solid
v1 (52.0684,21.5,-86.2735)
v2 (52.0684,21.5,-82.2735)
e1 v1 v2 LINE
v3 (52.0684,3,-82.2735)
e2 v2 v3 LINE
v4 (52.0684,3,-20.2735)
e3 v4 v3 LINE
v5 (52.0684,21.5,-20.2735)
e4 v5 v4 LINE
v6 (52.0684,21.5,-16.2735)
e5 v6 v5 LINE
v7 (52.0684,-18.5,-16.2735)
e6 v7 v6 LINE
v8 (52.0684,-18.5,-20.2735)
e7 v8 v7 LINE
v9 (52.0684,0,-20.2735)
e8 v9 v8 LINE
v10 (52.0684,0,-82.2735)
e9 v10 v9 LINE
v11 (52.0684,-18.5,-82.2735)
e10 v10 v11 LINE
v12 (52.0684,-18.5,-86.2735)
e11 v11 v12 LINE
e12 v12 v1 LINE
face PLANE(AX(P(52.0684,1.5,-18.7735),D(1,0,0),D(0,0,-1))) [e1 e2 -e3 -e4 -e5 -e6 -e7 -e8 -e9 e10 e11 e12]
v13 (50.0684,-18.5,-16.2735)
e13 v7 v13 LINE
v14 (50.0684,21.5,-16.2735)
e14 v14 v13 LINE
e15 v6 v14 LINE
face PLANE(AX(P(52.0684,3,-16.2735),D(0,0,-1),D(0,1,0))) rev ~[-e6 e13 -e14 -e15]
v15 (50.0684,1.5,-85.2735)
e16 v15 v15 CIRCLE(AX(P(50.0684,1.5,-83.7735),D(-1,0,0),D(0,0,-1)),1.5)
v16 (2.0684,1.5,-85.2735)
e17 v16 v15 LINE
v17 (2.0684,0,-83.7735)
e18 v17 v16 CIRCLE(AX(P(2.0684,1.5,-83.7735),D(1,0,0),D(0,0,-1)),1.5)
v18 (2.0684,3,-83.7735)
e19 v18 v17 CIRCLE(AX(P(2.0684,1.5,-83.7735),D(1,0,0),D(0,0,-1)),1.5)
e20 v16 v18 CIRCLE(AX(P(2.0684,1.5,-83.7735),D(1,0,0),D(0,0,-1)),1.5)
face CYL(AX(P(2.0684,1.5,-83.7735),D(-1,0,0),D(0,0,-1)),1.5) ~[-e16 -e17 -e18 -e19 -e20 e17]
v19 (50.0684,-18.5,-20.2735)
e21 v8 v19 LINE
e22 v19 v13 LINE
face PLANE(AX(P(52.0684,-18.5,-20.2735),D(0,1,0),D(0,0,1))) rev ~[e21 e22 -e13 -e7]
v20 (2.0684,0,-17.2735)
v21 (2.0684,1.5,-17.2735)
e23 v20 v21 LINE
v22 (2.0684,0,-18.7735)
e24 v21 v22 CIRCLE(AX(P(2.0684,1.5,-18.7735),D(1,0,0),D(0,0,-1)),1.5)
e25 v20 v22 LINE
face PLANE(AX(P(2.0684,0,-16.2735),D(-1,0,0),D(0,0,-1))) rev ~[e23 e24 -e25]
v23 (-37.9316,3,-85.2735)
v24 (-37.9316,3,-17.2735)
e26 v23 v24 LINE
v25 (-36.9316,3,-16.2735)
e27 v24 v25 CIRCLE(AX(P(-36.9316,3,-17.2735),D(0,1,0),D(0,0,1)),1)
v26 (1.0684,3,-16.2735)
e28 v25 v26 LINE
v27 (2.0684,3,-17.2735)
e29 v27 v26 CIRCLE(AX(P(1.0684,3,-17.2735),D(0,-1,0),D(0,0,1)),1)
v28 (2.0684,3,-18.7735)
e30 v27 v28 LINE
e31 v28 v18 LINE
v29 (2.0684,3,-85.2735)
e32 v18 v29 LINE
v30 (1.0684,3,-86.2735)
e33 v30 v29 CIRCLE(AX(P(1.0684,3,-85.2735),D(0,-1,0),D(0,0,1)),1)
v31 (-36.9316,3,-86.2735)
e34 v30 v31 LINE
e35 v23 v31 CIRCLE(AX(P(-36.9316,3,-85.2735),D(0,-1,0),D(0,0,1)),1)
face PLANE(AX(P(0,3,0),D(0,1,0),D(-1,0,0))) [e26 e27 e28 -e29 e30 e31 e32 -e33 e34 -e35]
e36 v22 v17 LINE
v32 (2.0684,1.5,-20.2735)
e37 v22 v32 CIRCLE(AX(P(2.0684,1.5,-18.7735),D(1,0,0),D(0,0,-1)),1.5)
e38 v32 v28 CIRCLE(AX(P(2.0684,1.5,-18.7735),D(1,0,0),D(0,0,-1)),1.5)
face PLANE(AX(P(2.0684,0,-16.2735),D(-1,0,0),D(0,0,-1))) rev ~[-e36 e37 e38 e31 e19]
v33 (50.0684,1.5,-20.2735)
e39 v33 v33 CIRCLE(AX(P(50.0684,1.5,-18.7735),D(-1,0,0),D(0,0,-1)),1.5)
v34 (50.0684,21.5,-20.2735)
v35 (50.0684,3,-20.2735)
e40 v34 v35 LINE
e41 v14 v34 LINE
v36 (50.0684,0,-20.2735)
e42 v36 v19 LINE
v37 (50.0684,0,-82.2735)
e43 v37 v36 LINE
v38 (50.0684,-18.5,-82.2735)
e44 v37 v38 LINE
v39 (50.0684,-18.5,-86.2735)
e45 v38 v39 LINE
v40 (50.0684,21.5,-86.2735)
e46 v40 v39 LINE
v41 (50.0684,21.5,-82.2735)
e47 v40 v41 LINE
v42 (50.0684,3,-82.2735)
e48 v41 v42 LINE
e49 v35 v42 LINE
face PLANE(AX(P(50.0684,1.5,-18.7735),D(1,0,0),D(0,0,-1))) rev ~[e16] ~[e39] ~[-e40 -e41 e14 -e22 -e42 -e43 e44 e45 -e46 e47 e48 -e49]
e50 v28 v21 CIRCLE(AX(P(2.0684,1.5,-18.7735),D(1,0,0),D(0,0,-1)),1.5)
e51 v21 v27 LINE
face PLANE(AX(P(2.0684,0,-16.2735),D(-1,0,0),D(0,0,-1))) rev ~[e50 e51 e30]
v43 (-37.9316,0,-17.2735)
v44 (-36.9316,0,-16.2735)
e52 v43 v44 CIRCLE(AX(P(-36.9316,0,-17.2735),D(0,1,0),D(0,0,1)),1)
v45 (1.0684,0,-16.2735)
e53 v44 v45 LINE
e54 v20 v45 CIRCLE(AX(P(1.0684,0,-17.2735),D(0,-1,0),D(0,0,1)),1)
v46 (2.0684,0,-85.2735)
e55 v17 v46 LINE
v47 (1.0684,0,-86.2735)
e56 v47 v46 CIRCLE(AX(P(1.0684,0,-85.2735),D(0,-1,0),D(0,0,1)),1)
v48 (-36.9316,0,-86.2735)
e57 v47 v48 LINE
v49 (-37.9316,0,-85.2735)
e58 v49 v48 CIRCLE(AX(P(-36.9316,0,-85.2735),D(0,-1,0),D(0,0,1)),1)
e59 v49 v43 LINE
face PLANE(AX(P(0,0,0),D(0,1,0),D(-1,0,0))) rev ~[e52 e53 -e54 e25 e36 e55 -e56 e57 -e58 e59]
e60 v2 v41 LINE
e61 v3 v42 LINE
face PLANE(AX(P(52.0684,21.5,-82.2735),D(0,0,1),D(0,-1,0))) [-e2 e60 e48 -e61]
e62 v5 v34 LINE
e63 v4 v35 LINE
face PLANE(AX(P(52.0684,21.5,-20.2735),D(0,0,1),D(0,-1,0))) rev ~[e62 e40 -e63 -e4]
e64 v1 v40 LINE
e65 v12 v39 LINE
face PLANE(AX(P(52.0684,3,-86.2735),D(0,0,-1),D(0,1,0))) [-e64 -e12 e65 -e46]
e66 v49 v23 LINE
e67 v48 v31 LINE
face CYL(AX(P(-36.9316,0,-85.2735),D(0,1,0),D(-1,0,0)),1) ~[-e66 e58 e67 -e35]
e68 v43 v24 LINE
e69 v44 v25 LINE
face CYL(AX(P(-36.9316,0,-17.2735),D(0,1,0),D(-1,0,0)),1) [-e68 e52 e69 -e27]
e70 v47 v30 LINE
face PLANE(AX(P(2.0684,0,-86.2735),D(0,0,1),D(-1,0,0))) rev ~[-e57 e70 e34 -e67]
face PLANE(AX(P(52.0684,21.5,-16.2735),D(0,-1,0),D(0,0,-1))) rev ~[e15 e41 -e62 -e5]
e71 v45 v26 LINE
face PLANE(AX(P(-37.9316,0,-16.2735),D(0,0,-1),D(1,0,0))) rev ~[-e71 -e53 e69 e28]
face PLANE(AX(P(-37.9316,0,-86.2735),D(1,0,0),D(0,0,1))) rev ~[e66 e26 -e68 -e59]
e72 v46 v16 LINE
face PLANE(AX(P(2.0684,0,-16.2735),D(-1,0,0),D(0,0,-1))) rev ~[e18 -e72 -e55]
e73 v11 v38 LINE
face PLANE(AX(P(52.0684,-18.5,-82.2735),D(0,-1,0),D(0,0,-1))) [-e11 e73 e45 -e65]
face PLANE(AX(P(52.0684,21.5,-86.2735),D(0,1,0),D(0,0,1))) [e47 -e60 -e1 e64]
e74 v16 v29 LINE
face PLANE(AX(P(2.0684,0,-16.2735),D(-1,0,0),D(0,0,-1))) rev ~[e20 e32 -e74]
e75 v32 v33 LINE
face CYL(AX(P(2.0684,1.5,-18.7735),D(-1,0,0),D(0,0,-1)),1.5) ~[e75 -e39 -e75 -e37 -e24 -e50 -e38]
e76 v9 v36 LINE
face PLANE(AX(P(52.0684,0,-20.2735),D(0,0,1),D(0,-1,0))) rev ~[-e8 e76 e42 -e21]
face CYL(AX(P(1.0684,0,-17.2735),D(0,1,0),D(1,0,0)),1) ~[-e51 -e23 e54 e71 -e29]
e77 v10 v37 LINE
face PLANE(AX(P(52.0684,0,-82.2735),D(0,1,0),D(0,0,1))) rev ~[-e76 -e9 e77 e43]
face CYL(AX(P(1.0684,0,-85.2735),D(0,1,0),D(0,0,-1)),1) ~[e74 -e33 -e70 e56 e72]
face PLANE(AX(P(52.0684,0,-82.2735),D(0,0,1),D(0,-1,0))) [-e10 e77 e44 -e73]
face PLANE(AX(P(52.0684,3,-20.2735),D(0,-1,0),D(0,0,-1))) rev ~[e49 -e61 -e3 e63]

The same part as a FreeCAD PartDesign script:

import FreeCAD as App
import Part
import Sketcher

V = App.Vector
Q = App.Units.Quantity


def edges_at(feature, points):
    """Names of the edges that pass closest to the given points."""
    edges = feature.Shape.Edges
    near = lambda p: min(range(len(edges)), key=lambda i: edges[i].distToShape(Part.Vertex(*p))[0])
    return sorted({f"Edge{near(p) + 1}" for p in points})


def add_polygon(sketch, points):
    """Adds a closed chain of lines whose ends are joined by coincident constraints."""
    first, n = sketch.GeometryCount, len(points)
    for a, b in zip(points, points[1:] + points[:1]):
        sketch.addGeometry(Part.LineSegment(App.Vector(*a, 0), App.Vector(*b, 0)), False)
    for i in range(n):
        sketch.addConstraint(Sketcher.Constraint("Coincident", first + i, 2, first + (i + 1) % n, 1))

doc = App.newDocument("Part")
body = doc.addObject("PartDesign::Body", "Body")

sketch1 = body.newObject("Sketcher::SketchObject", "Sketch")
sketch1.AttachmentSupport = (doc.getObject("XZ_Plane"), [""])
sketch1.MapMode = "FlatFace"
add_polygon(sketch1, [(-38, -86), (-38, -16), (2, -16), (2, -86)])
sketch1.addConstraint(Sketcher.Constraint("Vertical", 0))
sketch1.addConstraint(Sketcher.Constraint("Horizontal", 1))
sketch1.addConstraint(Sketcher.Constraint("Vertical", 2))
sketch1.addConstraint(Sketcher.Constraint("Horizontal", 3))
sketch1.addConstraint(Sketcher.Constraint("DistanceX", 1, 1, 1, 2, Q("40 mm")))
sketch1.addConstraint(Sketcher.Constraint("DistanceY", 0, 1, 0, 2, Q("70 mm")))
sketch1.addConstraint(Sketcher.Constraint("DistanceX", 0, 2, -1, 1, Q("37.9316 mm")))
sketch1.addConstraint(Sketcher.Constraint("DistanceY", 0, 2, -1, 1, Q("16.2735 mm")))
pad1 = body.newObject("PartDesign::Pad", "Pad")
pad1.Profile = sketch1
pad1.Length = 3
pad1.Reversed = True
doc.recompute()

fillet = body.newObject("PartDesign::Fillet", "Fillet")
fillet.Base = (pad1, edges_at(pad1, [
    (-37.932, 1.5, -16.273),
    (-37.932, 1.5, -86.273),
    (2.068, 1.5, -86.273),
    (2.068, 1.5, -16.273),
]))
fillet.Radius = 1

sketch2 = body.newObject("Sketcher::SketchObject", "Sketch001")
sketch2.AttachmentSupport = (doc.getObject("YZ_Plane"), [""])
sketch2.MapMode = "FlatFace"
sketch2.AttachmentOffset = App.Placement(V(0, 0, 2.0684), App.Rotation())
sketch2.addGeometry(Part.Circle(V(1.5, -18.8, 0), V(0, 0, 1), 1.5), False)
sketch2.addGeometry(Part.Circle(V(1.5, -83.8, 0), V(0, 0, 1), 1.5), False)
sketch2.addConstraint(Sketcher.Constraint("Equal", 0, 1))
sketch2.addConstraint(Sketcher.Constraint("Vertical", 0, 3, 1, 3))
sketch2.addConstraint(Sketcher.Constraint("Diameter", 0, Q("3 mm")))
sketch2.addConstraint(Sketcher.Constraint("DistanceX", -1, 1, 0, 3, Q("1.5 mm")))
sketch2.addConstraint(Sketcher.Constraint("DistanceY", 1, 3, 0, 3, Q("65 mm")))
sketch2.addConstraint(Sketcher.Constraint("DistanceY", 0, 3, -1, 1, Q("18.7735 mm")))
pad2 = body.newObject("PartDesign::Pad", "Pad001")
pad2.Profile = sketch2
pad2.Length = 50

sketch3 = body.newObject("Sketcher::SketchObject", "Sketch002")
sketch3.AttachmentSupport = (doc.getObject("YZ_Plane"), [""])
sketch3.MapMode = "FlatFace"
sketch3.AttachmentOffset = App.Placement(V(0, 0, 52.0684), App.Rotation())
add_polygon(sketch3, [(21.5, -16.3), (-18.5, -16.3), (-18.5, -20.3), (0, -20.3), (0, -82.3), (-18.5, -82.3), (-18.5, -86.3), (21.5, -86.3), (21.5, -82.3), (3, -82.3), (3, -20.3), (21.5, -20.3)])
sketch3.addConstraint(Sketcher.Constraint("Horizontal", 0))
sketch3.addConstraint(Sketcher.Constraint("Vertical", 1))
sketch3.addConstraint(Sketcher.Constraint("Horizontal", 2))
sketch3.addConstraint(Sketcher.Constraint("Vertical", 3))
sketch3.addConstraint(Sketcher.Constraint("Horizontal", 4))
sketch3.addConstraint(Sketcher.Constraint("Vertical", 5))
sketch3.addConstraint(Sketcher.Constraint("Horizontal", 6))
sketch3.addConstraint(Sketcher.Constraint("Vertical", 7))
sketch3.addConstraint(Sketcher.Constraint("Horizontal", 8))
sketch3.addConstraint(Sketcher.Constraint("Vertical", 9))
sketch3.addConstraint(Sketcher.Constraint("Horizontal", 10))
sketch3.addConstraint(Sketcher.Constraint("Vertical", 11))
sketch3.addConstraint(Sketcher.Constraint("PointOnObject", 2, 2, -2))
sketch3.addConstraint(Sketcher.Constraint("Horizontal", 4, 2, 7, 2))
sketch3.addConstraint(Sketcher.Constraint("Horizontal", 2, 2, 9, 2))
sketch3.addConstraint(Sketcher.Constraint("Vertical", 1, 2, 4, 2))
sketch3.addConstraint(Sketcher.Constraint("Vertical", 7, 2, 10, 2))
sketch3.addConstraint(Sketcher.Constraint("Equal", 4, 8))
sketch3.addConstraint(Sketcher.Constraint("Equal", 1, 5))
sketch3.addConstraint(Sketcher.Constraint("DistanceX", 0, 2, 0, 1, Q("40 mm")))
sketch3.addConstraint(Sketcher.Constraint("DistanceY", 1, 2, 1, 1, Q("4 mm")))
sketch3.addConstraint(Sketcher.Constraint("DistanceY", 3, 2, 3, 1, Q("62 mm")))
sketch3.addConstraint(Sketcher.Constraint("DistanceX", 2, 1, 2, 2, Q("18.5 mm")))
sketch3.addConstraint(Sketcher.Constraint("DistanceY", 0, 2, -1, 1, Q("16.2735 mm")))
pad3 = body.newObject("PartDesign::Pad", "Pad002")
pad3.Profile = sketch3
pad3.Length = 2
pad3.Reversed = True

doc.recompute()
